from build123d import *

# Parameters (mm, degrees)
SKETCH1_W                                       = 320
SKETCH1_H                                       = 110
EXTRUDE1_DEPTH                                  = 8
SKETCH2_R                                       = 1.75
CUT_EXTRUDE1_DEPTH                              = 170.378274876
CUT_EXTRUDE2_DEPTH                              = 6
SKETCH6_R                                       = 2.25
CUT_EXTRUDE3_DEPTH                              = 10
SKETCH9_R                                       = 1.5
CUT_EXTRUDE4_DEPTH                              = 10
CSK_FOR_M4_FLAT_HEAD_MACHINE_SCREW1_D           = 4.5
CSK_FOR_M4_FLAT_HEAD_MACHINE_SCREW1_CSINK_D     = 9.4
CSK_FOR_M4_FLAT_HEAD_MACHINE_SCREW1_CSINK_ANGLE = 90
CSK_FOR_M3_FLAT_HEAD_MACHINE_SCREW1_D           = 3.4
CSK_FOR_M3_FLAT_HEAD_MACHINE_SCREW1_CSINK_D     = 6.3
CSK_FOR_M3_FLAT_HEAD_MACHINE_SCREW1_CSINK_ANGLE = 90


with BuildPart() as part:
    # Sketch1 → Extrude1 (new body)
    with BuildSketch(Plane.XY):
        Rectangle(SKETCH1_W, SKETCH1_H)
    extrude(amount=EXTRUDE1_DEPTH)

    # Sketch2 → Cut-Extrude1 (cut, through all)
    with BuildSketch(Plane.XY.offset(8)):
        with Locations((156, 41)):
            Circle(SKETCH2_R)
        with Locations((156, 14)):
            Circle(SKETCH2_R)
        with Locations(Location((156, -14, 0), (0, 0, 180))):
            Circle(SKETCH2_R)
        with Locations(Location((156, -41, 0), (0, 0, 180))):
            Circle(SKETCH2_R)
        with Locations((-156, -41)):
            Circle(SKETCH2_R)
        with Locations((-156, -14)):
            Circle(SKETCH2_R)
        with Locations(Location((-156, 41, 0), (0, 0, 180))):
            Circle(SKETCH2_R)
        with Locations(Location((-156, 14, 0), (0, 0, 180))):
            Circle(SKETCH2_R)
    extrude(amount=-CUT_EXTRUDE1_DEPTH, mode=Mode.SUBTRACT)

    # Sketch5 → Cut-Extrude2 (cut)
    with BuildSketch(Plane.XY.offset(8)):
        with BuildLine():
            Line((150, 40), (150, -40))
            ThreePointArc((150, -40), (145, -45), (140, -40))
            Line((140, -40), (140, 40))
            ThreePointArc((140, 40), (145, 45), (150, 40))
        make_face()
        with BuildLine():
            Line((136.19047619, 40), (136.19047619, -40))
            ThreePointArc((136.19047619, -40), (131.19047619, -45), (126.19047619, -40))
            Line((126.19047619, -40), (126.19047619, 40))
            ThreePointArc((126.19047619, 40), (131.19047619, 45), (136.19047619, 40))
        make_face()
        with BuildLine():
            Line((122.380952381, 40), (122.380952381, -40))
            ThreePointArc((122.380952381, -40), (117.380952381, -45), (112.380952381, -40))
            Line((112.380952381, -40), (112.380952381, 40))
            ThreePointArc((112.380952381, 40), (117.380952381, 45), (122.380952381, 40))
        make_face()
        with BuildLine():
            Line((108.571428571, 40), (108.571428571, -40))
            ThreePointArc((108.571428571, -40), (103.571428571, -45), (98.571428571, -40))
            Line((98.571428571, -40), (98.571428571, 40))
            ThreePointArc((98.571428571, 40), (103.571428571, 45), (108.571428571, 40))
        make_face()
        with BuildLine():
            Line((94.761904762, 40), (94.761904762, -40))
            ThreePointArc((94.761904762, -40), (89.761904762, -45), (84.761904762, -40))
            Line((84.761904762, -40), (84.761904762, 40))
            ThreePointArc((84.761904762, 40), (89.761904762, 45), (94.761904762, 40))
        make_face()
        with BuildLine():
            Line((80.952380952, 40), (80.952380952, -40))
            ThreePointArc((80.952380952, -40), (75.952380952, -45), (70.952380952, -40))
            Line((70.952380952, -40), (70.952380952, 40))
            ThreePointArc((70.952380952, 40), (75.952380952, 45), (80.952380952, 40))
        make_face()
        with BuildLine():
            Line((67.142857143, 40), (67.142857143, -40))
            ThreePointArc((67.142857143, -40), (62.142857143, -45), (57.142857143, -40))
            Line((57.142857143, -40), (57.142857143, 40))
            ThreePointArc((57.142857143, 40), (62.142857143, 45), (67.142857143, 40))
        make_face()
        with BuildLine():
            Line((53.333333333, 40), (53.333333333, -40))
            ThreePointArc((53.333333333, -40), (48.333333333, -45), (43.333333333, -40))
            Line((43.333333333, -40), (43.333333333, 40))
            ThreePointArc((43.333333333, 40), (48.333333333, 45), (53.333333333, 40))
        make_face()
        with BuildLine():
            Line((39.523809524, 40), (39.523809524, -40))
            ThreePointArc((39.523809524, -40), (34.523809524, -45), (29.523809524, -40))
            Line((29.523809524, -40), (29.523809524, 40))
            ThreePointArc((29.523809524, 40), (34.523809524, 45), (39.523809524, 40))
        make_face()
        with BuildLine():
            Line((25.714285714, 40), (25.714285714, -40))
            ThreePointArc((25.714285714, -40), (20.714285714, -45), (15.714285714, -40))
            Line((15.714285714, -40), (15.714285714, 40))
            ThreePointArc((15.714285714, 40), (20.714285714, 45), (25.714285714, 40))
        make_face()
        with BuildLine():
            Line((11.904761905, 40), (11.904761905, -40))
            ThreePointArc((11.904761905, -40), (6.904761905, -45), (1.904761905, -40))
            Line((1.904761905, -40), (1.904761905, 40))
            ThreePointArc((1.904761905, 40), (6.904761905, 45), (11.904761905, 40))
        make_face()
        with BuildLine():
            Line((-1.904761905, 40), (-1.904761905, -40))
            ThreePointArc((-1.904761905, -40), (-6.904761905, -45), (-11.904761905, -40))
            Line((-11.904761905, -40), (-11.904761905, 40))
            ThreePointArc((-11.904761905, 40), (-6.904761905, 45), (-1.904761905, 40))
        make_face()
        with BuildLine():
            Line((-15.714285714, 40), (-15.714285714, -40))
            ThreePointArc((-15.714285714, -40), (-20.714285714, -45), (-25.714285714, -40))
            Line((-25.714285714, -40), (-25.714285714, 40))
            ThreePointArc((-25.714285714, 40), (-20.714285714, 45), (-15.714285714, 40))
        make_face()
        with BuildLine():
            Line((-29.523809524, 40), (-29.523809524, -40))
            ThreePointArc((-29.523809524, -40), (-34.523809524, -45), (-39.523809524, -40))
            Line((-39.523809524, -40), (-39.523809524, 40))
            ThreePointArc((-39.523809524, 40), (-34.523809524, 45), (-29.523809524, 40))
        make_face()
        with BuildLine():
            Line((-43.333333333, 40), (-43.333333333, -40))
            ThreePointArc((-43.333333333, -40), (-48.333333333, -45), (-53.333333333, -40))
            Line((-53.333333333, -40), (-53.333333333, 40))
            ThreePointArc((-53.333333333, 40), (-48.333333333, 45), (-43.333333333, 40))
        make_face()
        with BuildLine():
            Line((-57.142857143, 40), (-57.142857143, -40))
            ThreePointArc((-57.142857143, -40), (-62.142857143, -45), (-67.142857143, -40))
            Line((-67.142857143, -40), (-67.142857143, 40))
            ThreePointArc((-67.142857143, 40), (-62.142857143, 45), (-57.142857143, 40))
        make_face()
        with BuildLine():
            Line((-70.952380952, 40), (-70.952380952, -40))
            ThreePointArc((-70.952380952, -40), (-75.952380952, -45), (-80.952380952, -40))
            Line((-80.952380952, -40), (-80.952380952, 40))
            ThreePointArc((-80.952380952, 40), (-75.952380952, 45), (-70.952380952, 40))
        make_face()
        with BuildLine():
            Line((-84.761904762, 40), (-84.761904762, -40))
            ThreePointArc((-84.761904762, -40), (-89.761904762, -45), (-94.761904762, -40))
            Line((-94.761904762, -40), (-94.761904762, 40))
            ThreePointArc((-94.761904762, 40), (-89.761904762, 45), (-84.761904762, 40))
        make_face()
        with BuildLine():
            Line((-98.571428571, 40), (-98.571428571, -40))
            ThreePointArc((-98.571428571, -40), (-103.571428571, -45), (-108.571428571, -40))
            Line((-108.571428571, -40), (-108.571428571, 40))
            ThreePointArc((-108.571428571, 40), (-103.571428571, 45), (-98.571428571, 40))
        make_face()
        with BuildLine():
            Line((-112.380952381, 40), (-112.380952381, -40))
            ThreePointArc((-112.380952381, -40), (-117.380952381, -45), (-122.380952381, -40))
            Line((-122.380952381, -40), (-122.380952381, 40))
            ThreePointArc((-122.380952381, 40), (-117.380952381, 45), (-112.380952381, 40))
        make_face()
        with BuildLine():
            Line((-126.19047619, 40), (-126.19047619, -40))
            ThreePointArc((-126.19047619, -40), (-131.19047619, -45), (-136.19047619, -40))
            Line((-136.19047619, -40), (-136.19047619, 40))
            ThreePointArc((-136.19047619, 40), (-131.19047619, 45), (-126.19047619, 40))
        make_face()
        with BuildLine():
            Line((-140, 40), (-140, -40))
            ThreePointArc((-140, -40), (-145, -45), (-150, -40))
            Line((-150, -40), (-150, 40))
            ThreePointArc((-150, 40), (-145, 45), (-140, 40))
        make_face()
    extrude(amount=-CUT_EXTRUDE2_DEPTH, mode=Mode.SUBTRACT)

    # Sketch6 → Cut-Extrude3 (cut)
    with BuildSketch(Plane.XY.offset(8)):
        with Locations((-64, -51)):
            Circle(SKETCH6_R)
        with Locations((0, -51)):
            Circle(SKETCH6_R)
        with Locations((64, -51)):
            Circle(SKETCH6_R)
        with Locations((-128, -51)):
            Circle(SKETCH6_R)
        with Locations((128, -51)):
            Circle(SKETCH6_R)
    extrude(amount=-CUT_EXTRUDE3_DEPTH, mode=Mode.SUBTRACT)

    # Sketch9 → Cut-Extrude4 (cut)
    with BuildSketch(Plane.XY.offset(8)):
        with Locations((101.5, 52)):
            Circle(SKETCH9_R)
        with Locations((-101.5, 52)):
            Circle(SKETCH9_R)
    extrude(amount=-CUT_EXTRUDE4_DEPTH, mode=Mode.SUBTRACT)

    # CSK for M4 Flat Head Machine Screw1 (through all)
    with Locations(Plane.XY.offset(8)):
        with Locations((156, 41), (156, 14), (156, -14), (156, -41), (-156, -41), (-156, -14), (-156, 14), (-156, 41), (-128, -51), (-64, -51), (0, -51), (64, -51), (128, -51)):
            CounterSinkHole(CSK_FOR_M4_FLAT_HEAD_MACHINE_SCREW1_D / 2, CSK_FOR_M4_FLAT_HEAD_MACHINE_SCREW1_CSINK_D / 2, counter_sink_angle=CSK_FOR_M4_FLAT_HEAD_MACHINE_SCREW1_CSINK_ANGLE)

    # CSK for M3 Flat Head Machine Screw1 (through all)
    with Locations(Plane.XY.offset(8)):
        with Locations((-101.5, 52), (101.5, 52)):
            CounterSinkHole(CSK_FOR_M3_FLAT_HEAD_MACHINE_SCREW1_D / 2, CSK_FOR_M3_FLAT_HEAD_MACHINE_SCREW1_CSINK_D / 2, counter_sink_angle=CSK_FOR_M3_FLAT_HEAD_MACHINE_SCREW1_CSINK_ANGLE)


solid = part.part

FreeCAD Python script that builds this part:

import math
import FreeCAD as App
import Part
import Sketcher

V = App.Vector
Q = App.Units.Quantity

doc = App.newDocument("Part")
body = doc.addObject("PartDesign::Body", "Body")

# Sketch on XY plane
sketch1 = body.newObject("Sketcher::SketchObject", "Sketch")
sketch1.AttachmentSupport = (doc.getObject("XY_Plane"), [""])
sketch1.MapMode = "FlatFace"
sketch1.addGeometry([
    Part.LineSegment(V(-160, 55, 0), V(-160, -55, 0)),
    Part.LineSegment(V(-160, -55, 0), V(160, -55, 0)),
    Part.LineSegment(V(160, -55, 0), V(160, 55, 0)),
    Part.LineSegment(V(160, 55, 0), V(-160, 55, 0)),
], False)
sketch1.addConstraint([
    Sketcher.Constraint("Coincident", 0, 2, 1, 1),
    Sketcher.Constraint("Coincident", 1, 2, 2, 1),
    Sketcher.Constraint("Coincident", 2, 2, 3, 1),
    Sketcher.Constraint("Coincident", 3, 2, 0, 1),
    Sketcher.Constraint("Vertical", 0),
    Sketcher.Constraint("Horizontal", 1),
    Sketcher.Constraint("Vertical", 2),
    Sketcher.Constraint("Horizontal", 3),
    Sketcher.Constraint("Symmetric", 0, 2, 2, 2, -1, 1),
    Sketcher.Constraint("DistanceX", 1, 1, 1, 2, Q("320 mm")),
    Sketcher.Constraint("DistanceY", 0, 2, 0, 1, Q("110 mm")),
])
pad1 = body.newObject("PartDesign::Pad", "Pad")
pad1.Profile = sketch1
pad1.Length = 8

# Sketch on XY plane
sketch2 = body.newObject("Sketcher::SketchObject", "Sketch001")
sketch2.AttachmentSupport = (doc.getObject("XY_Plane"), [""])
sketch2.MapMode = "FlatFace"
sketch2.AttachmentOffset = App.Placement(V(0, 0, 8), App.Rotation())
sketch2.addGeometry([
    Part.Circle(V(156, 41, 0), V(0, 0, 1), 1.75),  # 0
    Part.Circle(V(156, 14, 0), V(0, 0, 1), 1.75),  # 1
    Part.Circle(V(156, -14, 0), V(0, 0, 1), 1.75),  # 2
    Part.Circle(V(156, -41, 0), V(0, 0, 1), 1.75),  # 3
    Part.Circle(V(-156, -41, 0), V(0, 0, 1), 1.75),  # 4
    Part.Circle(V(-156, -14, 0), V(0, 0, 1), 1.75),  # 5
    Part.Circle(V(-156, 41, 0), V(0, 0, 1), 1.75),  # 6
    Part.Circle(V(-156, 14, 0), V(0, 0, 1), 1.75),  # 7
], False)
sketch2.addConstraint([
    Sketcher.Constraint("Equal", 0, 1),
    Sketcher.Constraint("Equal", 1, 2),
    Sketcher.Constraint("Equal", 2, 3),
    Sketcher.Constraint("Equal", 3, 4),
    Sketcher.Constraint("Equal", 4, 5),
    Sketcher.Constraint("Equal", 5, 6),
    Sketcher.Constraint("Equal", 6, 7),
    Sketcher.Constraint("Symmetric", 0, 3, 4, 3, -1, 1),
    Sketcher.Constraint("Symmetric", 1, 3, 5, 3, -1, 1),
    Sketcher.Constraint("Symmetric", 3, 3, 6, 3, -1, 1),
    Sketcher.Constraint("Symmetric", 2, 3, 7, 3, -1, 1),
    Sketcher.Constraint("Symmetric", 3, 3, 4, 3, -2),
    Sketcher.Constraint("Symmetric", 2, 3, 5, 3, -2),
    Sketcher.Constraint("Vertical", 0, 3, 1, 3),
    Sketcher.Constraint("Diameter", 0, Q("3.5 mm")),
    Sketcher.Constraint("DistanceX", -1, 1, 0, 3, Q("156 mm")),
    Sketcher.Constraint("DistanceY", -1, 1, 0, 3, Q("41 mm")),
    Sketcher.Constraint("DistanceY", -1, 1, 1, 3, Q("14 mm")),
])
pocket1 = body.newObject("PartDesign::Pocket", "Pocket")
pocket1.Profile = sketch2
pocket1.Type = "ThroughAll"

# Sketch on XY plane
sketch3 = body.newObject("Sketcher::SketchObject", "Sketch002")
sketch3.AttachmentSupport = (doc.getObject("XY_Plane"), [""])
sketch3.MapMode = "FlatFace"
sketch3.AttachmentOffset = App.Placement(V(0, 0, 8), App.Rotation())
sketch3.addGeometry([
    Part.LineSegment(V(150, -40, 0), V(150, 40, 0)),  # 0
    Part.ArcOfCircle(Part.Circle(V(145, 40, 0), V(0, 0, 1), 5), math.radians(0), math.radians(180)),  # 1
    Part.LineSegment(V(140, 40, 0), V(140, -40, 0)),  # 2
    Part.ArcOfCircle(Part.Circle(V(145, -40, 0), V(0, 0, 1), 5), math.radians(180), math.radians(360)),  # 3
    Part.LineSegment(V(136.190476, -40, 0), V(136.190476, 40, 0)),  # 4
    Part.ArcOfCircle(Part.Circle(V(131.190476, 40, 0), V(0, 0, 1), 5), math.radians(0), math.radians(180)),  # 5
    Part.LineSegment(V(126.190476, 40, 0), V(126.190476, -40, 0)),  # 6
    Part.ArcOfCircle(Part.Circle(V(131.190476, -40, 0), V(0, 0, 1), 5), math.radians(180), math.radians(360)),  # 7
    Part.LineSegment(V(122.380952, -40, 0), V(122.380952, 40, 0)),  # 8
    Part.ArcOfCircle(Part.Circle(V(117.380952, 40, 0), V(0, 0, 1), 5), math.radians(0), math.radians(180)),  # 9
    Part.LineSegment(V(112.380952, 40, 0), V(112.380952, -40, 0)),  # 10
    Part.ArcOfCircle(Part.Circle(V(117.380952, -40, 0), V(0, 0, 1), 5), math.radians(180), math.radians(360)),  # 11
    Part.LineSegment(V(108.571429, -40, 0), V(108.571429, 40, 0)),  # 12
    Part.ArcOfCircle(Part.Circle(V(103.571429, 40, 0), V(0, 0, 1), 5), math.radians(0), math.radians(180)),  # 13
    Part.LineSegment(V(98.571429, 40, 0), V(98.571429, -40, 0)),  # 14
    Part.ArcOfCircle(Part.Circle(V(103.571429, -40, 0), V(0, 0, 1), 5), math.radians(180), math.radians(360)),  # 15
    Part.LineSegment(V(94.761905, -40, 0), V(94.761905, 40, 0)),  # 16
    Part.ArcOfCircle(Part.Circle(V(89.761905, 40, 0), V(0, 0, 1), 5), math.radians(0), math.radians(180)),  # 17
    Part.LineSegment(V(84.761905, 40, 0), V(84.761905, -40, 0)),  # 18
    Part.ArcOfCircle(Part.Circle(V(89.761905, -40, 0), V(0, 0, 1), 5), math.radians(180), math.radians(360)),  # 19
    Part.LineSegment(V(80.952381, -40, 0), V(80.952381, 40, 0)),  # 20
    Part.ArcOfCircle(Part.Circle(V(75.952381, 40, 0), V(0, 0, 1), 5), math.radians(0), math.radians(180)),  # 21
    Part.LineSegment(V(70.952381, 40, 0), V(70.952381, -40, 0)),  # 22
    Part.ArcOfCircle(Part.Circle(V(75.952381, -40, 0), V(0, 0, 1), 5), math.radians(180), math.radians(360)),  # 23
    Part.LineSegment(V(67.142857, -40, 0), V(67.142857, 40, 0)),  # 24
    Part.ArcOfCircle(Part.Circle(V(62.142857, 40, 0), V(0, 0, 1), 5), math.radians(0), math.radians(180)),  # 25
    Part.LineSegment(V(57.142857, 40, 0), V(57.142857, -40, 0)),  # 26
    Part.ArcOfCircle(Part.Circle(V(62.142857, -40, 0), V(0, 0, 1), 5), math.radians(180), math.radians(360)),  # 27
    Part.LineSegment(V(53.333333, -40, 0), V(53.333333, 40, 0)),  # 28
    Part.ArcOfCircle(Part.Circle(V(48.333333, 40, 0), V(0, 0, 1), 5), math.radians(0), math.radians(180)),  # 29
    Part.LineSegment(V(43.333333, 40, 0), V(43.333333, -40, 0)),  # 30
    Part.ArcOfCircle(Part.Circle(V(48.333333, -40, 0), V(0, 0, 1), 5), math.radians(180), math.radians(360)),  # 31
    Part.LineSegment(V(39.52381, -40, 0), V(39.52381, 40, 0)),  # 32
    Part.ArcOfCircle(Part.Circle(V(34.52381, 40, 0), V(0, 0, 1), 5), math.radians(0), math.radians(180)),  # 33
    Part.LineSegment(V(29.52381, 40, 0), V(29.52381, -40, 0)),  # 34
    Part.ArcOfCircle(Part.Circle(V(34.52381, -40, 0), V(0, 0, 1), 5), math.radians(180), math.radians(360)),  # 35
    Part.LineSegment(V(25.714286, -40, 0), V(25.714286, 40, 0)),  # 36
    Part.ArcOfCircle(Part.Circle(V(20.714286, 40, 0), V(0, 0, 1), 5), math.radians(0), math.radians(180)),  # 37
    Part.LineSegment(V(15.714286, 40, 0), V(15.714286, -40, 0)),  # 38
    Part.ArcOfCircle(Part.Circle(V(20.714286, -40, 0), V(0, 0, 1), 5), math.radians(180), math.radians(360)),  # 39
    Part.LineSegment(V(11.904762, -40, 0), V(11.904762, 40, 0)),  # 40
    Part.ArcOfCircle(Part.Circle(V(6.904762, 40, 0), V(0, 0, 1), 5), math.radians(0), math.radians(180)),  # 41
    Part.LineSegment(V(1.904762, 40, 0), V(1.904762, -40, 0)),  # 42
    Part.ArcOfCircle(Part.Circle(V(6.904762, -40, 0), V(0, 0, 1), 5), math.radians(180), math.radians(360)),  # 43
    Part.LineSegment(V(-1.904762, -40, 0), V(-1.904762, 40, 0)),  # 44
    Part.ArcOfCircle(Part.Circle(V(-6.904762, 40, 0), V(0, 0, 1), 5), math.radians(0), math.radians(180)),  # 45
    Part.LineSegment(V(-11.904762, 40, 0), V(-11.904762, -40, 0)),  # 46
    Part.ArcOfCircle(Part.Circle(V(-6.904762, -40, 0), V(0, 0, 1), 5), math.radians(180), math.radians(360)),  # 47
    Part.LineSegment(V(-15.714286, -40, 0), V(-15.714286, 40, 0)),  # 48
    Part.ArcOfCircle(Part.Circle(V(-20.714286, 40, 0), V(0, 0, 1), 5), math.radians(0), math.radians(180)),  # 49
    Part.LineSegment(V(-25.714286, 40, 0), V(-25.714286, -40, 0)),  # 50
    Part.ArcOfCircle(Part.Circle(V(-20.714286, -40, 0), V(0, 0, 1), 5), math.radians(180), math.radians(360)),  # 51
    Part.LineSegment(V(-29.52381, -40, 0), V(-29.52381, 40, 0)),  # 52
    Part.ArcOfCircle(Part.Circle(V(-34.52381, 40, 0), V(0, 0, 1), 5), math.radians(0), math.radians(180)),  # 53
    Part.LineSegment(V(-39.52381, 40, 0), V(-39.52381, -40, 0)),  # 54
    Part.ArcOfCircle(Part.Circle(V(-34.52381, -40, 0), V(0, 0, 1), 5), math.radians(180), math.radians(360)),  # 55
    Part.LineSegment(V(-43.333333, -40, 0), V(-43.333333, 40, 0)),  # 56
    Part.ArcOfCircle(Part.Circle(V(-48.333333, 40, 0), V(0, 0, 1), 5), math.radians(0), math.radians(180)),  # 57
    Part.LineSegment(V(-53.333333, 40, 0), V(-53.333333, -40, 0)),  # 58
    Part.ArcOfCircle(Part.Circle(V(-48.333333, -40, 0), V(0, 0, 1), 5), math.radians(180), math.radians(360)),  # 59
    Part.LineSegment(V(-57.142857, -40, 0), V(-57.142857, 40, 0)),  # 60
    Part.ArcOfCircle(Part.Circle(V(-62.142857, 40, 0), V(0, 0, 1), 5), math.radians(0), math.radians(180)),  # 61
    Part.LineSegment(V(-67.142857, 40, 0), V(-67.142857, -40, 0)),  # 62
    Part.ArcOfCircle(Part.Circle(V(-62.142857, -40, 0), V(0, 0, 1), 5), math.radians(180), math.radians(360)),  # 63
    Part.LineSegment(V(-70.952381, -40, 0), V(-70.952381, 40, 0)),  # 64
    Part.ArcOfCircle(Part.Circle(V(-75.952381, 40, 0), V(0, 0, 1), 5), math.radians(0), math.radians(180)),  # 65
    Part.LineSegment(V(-80.952381, 40, 0), V(-80.952381, -40, 0)),  # 66
    Part.ArcOfCircle(Part.Circle(V(-75.952381, -40, 0), V(0, 0, 1), 5), math.radians(180), math.radians(360)),  # 67
    Part.LineSegment(V(-84.761905, -40, 0), V(-84.761905, 40, 0)),  # 68
    Part.ArcOfCircle(Part.Circle(V(-89.761905, 40, 0), V(0, 0, 1), 5), math.radians(0), math.radians(180)),  # 69
    Part.LineSegment(V(-94.761905, 40, 0), V(-94.761905, -40, 0)),  # 70
    Part.ArcOfCircle(Part.Circle(V(-89.761905, -40, 0), V(0, 0, 1), 5), math.radians(180), math.radians(360)),  # 71
    Part.LineSegment(V(-98.571429, -40, 0), V(-98.571429, 40, 0)),  # 72
    Part.ArcOfCircle(Part.Circle(V(-103.571429, 40, 0), V(0, 0, 1), 5), math.radians(0), math.radians(180)),  # 73
    Part.LineSegment(V(-108.571429, 40, 0), V(-108.571429, -40, 0)),  # 74
    Part.ArcOfCircle(Part.Circle(V(-103.571429, -40, 0), V(0, 0, 1), 5), math.radians(180), math.radians(360)),  # 75
    Part.LineSegment(V(-112.380952, -40, 0), V(-112.380952, 40, 0)),  # 76
    Part.ArcOfCircle(Part.Circle(V(-117.380952, 40, 0), V(0, 0, 1), 5), math.radians(0), math.radians(180)),  # 77
    Part.LineSegment(V(-122.380952, 40, 0), V(-122.380952, -40, 0)),  # 78
    Part.ArcOfCircle(Part.Circle(V(-117.380952, -40, 0), V(0, 0, 1), 5), math.radians(180), math.radians(360)),  # 79
    Part.LineSegment(V(-126.190476, -40, 0), V(-126.190476, 40, 0)),  # 80
    Part.ArcOfCircle(Part.Circle(V(-131.190476, 40, 0), V(0, 0, 1), 5), math.radians(0), math.radians(180)),  # 81
    Part.LineSegment(V(-136.190476, 40, 0), V(-136.190476, -40, 0)),  # 82
    Part.ArcOfCircle(Part.Circle(V(-131.190476, -40, 0), V(0, 0, 1), 5), math.radians(180), math.radians(360)),  # 83
    Part.LineSegment(V(-140, -40, 0), V(-140, 40, 0)),  # 84
    Part.ArcOfCircle(Part.Circle(V(-145, 40, 0), V(0, 0, 1), 5), math.radians(0), math.radians(180)),  # 85
    Part.LineSegment(V(-150, 40, 0), V(-150, -40, 0)),  # 86
    Part.ArcOfCircle(Part.Circle(V(-145, -40, 0), V(0, 0, 1), 5), math.radians(180), math.radians(360)),  # 87
], False)
sketch3.addConstraint([
    Sketcher.Constraint("Tangent", 0, 2, 1, 1),
    Sketcher.Constraint("Tangent", 1, 2, 2, 1),
    Sketcher.Constraint("Tangent", 2, 2, 3, 1),
    Sketcher.Constraint("Tangent", 3, 2, 0, 1),
    Sketcher.Constraint("Tangent", 4, 2, 5, 1),
    Sketcher.Constraint("Tangent", 5, 2, 6, 1),
    Sketcher.Constraint("Tangent", 6, 2, 7, 1),
    Sketcher.Constraint("Tangent", 7, 2, 4, 1),
    Sketcher.Constraint("Tangent", 8, 2, 9, 1),
    Sketcher.Constraint("Tangent", 9, 2, 10, 1),
    Sketcher.Constraint("Tangent", 10, 2, 11, 1),
    Sketcher.Constraint("Tangent", 11, 2, 8, 1),
    Sketcher.Constraint("Tangent", 12, 2, 13, 1),
    Sketcher.Constraint("Tangent", 13, 2, 14, 1),
    Sketcher.Constraint("Tangent", 14, 2, 15, 1),
    Sketcher.Constraint("Tangent", 15, 2, 12, 1),
    Sketcher.Constraint("Tangent", 16, 2, 17, 1),
    Sketcher.Constraint("Tangent", 17, 2, 18, 1),
    Sketcher.Constraint("Tangent", 18, 2, 19, 1),
    Sketcher.Constraint("Tangent", 19, 2, 16, 1),
    Sketcher.Constraint("Tangent", 20, 2, 21, 1),
    Sketcher.Constraint("Tangent", 21, 2, 22, 1),
    Sketcher.Constraint("Tangent", 22, 2, 23, 1),
    Sketcher.Constraint("Tangent", 23, 2, 20, 1),
    Sketcher.Constraint("Tangent", 24, 2, 25, 1),
    Sketcher.Constraint("Tangent", 25, 2, 26, 1),
    Sketcher.Constraint("Tangent", 26, 2, 27, 1),
    Sketcher.Constraint("Tangent", 27, 2, 24, 1),
    Sketcher.Constraint("Tangent", 28, 2, 29, 1),
    Sketcher.Constraint("Tangent", 29, 2, 30, 1),
    Sketcher.Constraint("Tangent", 30, 2, 31, 1),
    Sketcher.Constraint("Tangent", 31, 2, 28, 1),
    Sketcher.Constraint("Tangent", 32, 2, 33, 1),
    Sketcher.Constraint("Tangent", 33, 2, 34, 1),
    Sketcher.Constraint("Tangent", 34, 2, 35, 1),
    Sketcher.Constraint("Tangent", 35, 2, 32, 1),
    Sketcher.Constraint("Tangent", 36, 2, 37, 1),
    Sketcher.Constraint("Tangent", 37, 2, 38, 1),
    Sketcher.Constraint("Tangent", 38, 2, 39, 1),
    Sketcher.Constraint("Tangent", 39, 2, 36, 1),
    Sketcher.Constraint("Tangent", 40, 2, 41, 1),
    Sketcher.Constraint("Tangent", 41, 2, 42, 1),
    Sketcher.Constraint("Tangent", 42, 2, 43, 1),
    Sketcher.Constraint("Tangent", 43, 2, 40, 1),
    Sketcher.Constraint("Tangent", 44, 2, 45, 1),
    Sketcher.Constraint("Tangent", 45, 2, 46, 1),
    Sketcher.Constraint("Tangent", 46, 2, 47, 1),
    Sketcher.Constraint("Tangent", 47, 2, 44, 1),
    Sketcher.Constraint("Tangent", 48, 2, 49, 1),
    Sketcher.Constraint("Tangent", 49, 2, 50, 1),
    Sketcher.Constraint("Tangent", 50, 2, 51, 1),
    Sketcher.Constraint("Tangent", 51, 2, 48, 1),
    Sketcher.Constraint("Tangent", 52, 2, 53, 1),
    Sketcher.Constraint("Tangent", 53, 2, 54, 1),
    Sketcher.Constraint("Tangent", 54, 2, 55, 1),
    Sketcher.Constraint("Tangent", 55, 2, 52, 1),
    Sketcher.Constraint("Tangent", 56, 2, 57, 1),
    Sketcher.Constraint("Tangent", 57, 2, 58, 1),
    Sketcher.Constraint("Tangent", 58, 2, 59, 1),
    Sketcher.Constraint("Tangent", 59, 2, 56, 1),
    Sketcher.Constraint("Tangent", 60, 2, 61, 1),
    Sketcher.Constraint("Tangent", 61, 2, 62, 1),
    Sketcher.Constraint("Tangent", 62, 2, 63, 1),
    Sketcher.Constraint("Tangent", 63, 2, 60, 1),
    Sketcher.Constraint("Tangent", 64, 2, 65, 1),
    Sketcher.Constraint("Tangent", 65, 2, 66, 1),
    Sketcher.Constraint("Tangent", 66, 2, 67, 1),
    Sketcher.Constraint("Tangent", 67, 2, 64, 1),
    Sketcher.Constraint("Tangent", 68, 2, 69, 1),
    Sketcher.Constraint("Tangent", 69, 2, 70, 1),
    Sketcher.Constraint("Tangent", 70, 2, 71, 1),
    Sketcher.Constraint("Tangent", 71, 2, 68, 1),
    Sketcher.Constraint("Tangent", 72, 2, 73, 1),
    Sketcher.Constraint("Tangent", 73, 2, 74, 1),
    Sketcher.Constraint("Tangent", 74, 2, 75, 1),
    Sketcher.Constraint("Tangent", 75, 2, 72, 1),
    Sketcher.Constraint("Tangent", 76, 2, 77, 1),
    Sketcher.Constraint("Tangent", 77, 2, 78, 1),
    Sketcher.Constraint("Tangent", 78, 2, 79, 1),
    Sketcher.Constraint("Tangent", 79, 2, 76, 1),
    Sketcher.Constraint("Tangent", 80, 2, 81, 1),
    Sketcher.Constraint("Tangent", 81, 2, 82, 1),
    Sketcher.Constraint("Tangent", 82, 2, 83, 1),
    Sketcher.Constraint("Tangent", 83, 2, 80, 1),
    Sketcher.Constraint("Tangent", 84, 2, 85, 1),
    Sketcher.Constraint("Tangent", 85, 2, 86, 1),
    Sketcher.Constraint("Tangent", 86, 2, 87, 1),
    Sketcher.Constraint("Tangent", 87, 2, 84, 1),
    Sketcher.Constraint("Vertical", 0),
    Sketcher.Constraint("Vertical", 2),
    Sketcher.Constraint("Vertical", 4),
    Sketcher.Constraint("Vertical", 6),
    Sketcher.Constraint("Vertical", 8),
    Sketcher.Constraint("Vertical", 10),
    Sketcher.Constraint("Vertical", 12),
    Sketcher.Constraint("Vertical", 14),
    Sketcher.Constraint("Vertical", 16),
    Sketcher.Constraint("Vertical", 18),
    Sketcher.Constraint("Vertical", 20),
    Sketcher.Constraint("Vertical", 22),
    Sketcher.Constraint("Vertical", 24),
    Sketcher.Constraint("Vertical", 26),
    Sketcher.Constraint("Vertical", 28),
    Sketcher.Constraint("Vertical", 30),
    Sketcher.Constraint("Vertical", 32),
    Sketcher.Constraint("Vertical", 34),
    Sketcher.Constraint("Vertical", 36),
    Sketcher.Constraint("Vertical", 38),
    Sketcher.Constraint("Vertical", 40),
    Sketcher.Constraint("Vertical", 42),
    Sketcher.Constraint("Vertical", 44),
    Sketcher.Constraint("Vertical", 46),
    Sketcher.Constraint("Vertical", 48),
    Sketcher.Constraint("Vertical", 50),
    Sketcher.Constraint("Vertical", 52),
    Sketcher.Constraint("Vertical", 54),
    Sketcher.Constraint("Vertical", 56),
    Sketcher.Constraint("Vertical", 58),
    Sketcher.Constraint("Vertical", 60),
    Sketcher.Constraint("Vertical", 62),
    Sketcher.Constraint("Vertical", 64),
    Sketcher.Constraint("Vertical", 66),
    Sketcher.Constraint("Vertical", 68),
    Sketcher.Constraint("Vertical", 70),
    Sketcher.Constraint("Vertical", 72),
    Sketcher.Constraint("Vertical", 74),
    Sketcher.Constraint("Vertical", 76),
    Sketcher.Constraint("Vertical", 78),
    Sketcher.Constraint("Vertical", 80),
    Sketcher.Constraint("Vertical", 82),
    Sketcher.Constraint("Vertical", 84),
    Sketcher.Constraint("Vertical", 86),
    Sketcher.Constraint("Equal", 3, 5),
    Sketcher.Constraint("Equal", 7, 9),
    Sketcher.Constraint("Equal", 11, 13),
    Sketcher.Constraint("Equal", 15, 17),
    Sketcher.Constraint("Equal", 19, 21),
    Sketcher.Constraint("Equal", 23, 25),
    Sketcher.Constraint("Equal", 27, 29),
    Sketcher.Constraint("Equal", 31, 33),
    Sketcher.Constraint("Equal", 35, 37),
    Sketcher.Constraint("Equal", 39, 41),
    Sketcher.Constraint("Equal", 43, 45),
    Sketcher.Constraint("Equal", 47, 49),
    Sketcher.Constraint("Equal", 51, 53),
    Sketcher.Constraint("Equal", 55, 57),
    Sketcher.Constraint("Equal", 59, 61),
    Sketcher.Constraint("Equal", 63, 65),
    Sketcher.Constraint("Equal", 67, 69),
    Sketcher.Constraint("Equal", 71, 73),
    Sketcher.Constraint("Equal", 75, 77),
    Sketcher.Constraint("Equal", 79, 81),
    Sketcher.Constraint("Equal", 83, 85),
    Sketcher.Constraint("Symmetric", 43, 3, 45, 3, -1, 1),
    Sketcher.Constraint("Symmetric", 39, 3, 49, 3, -1, 1),
    Sketcher.Constraint("Symmetric", 35, 3, 53, 3, -1, 1),
    Sketcher.Constraint("Symmetric", 31, 3, 57, 3, -1, 1),
    Sketcher.Constraint("Symmetric", 27, 3, 61, 3, -1, 1),
    Sketcher.Constraint("Symmetric", 23, 3, 65, 3, -1, 1),
    Sketcher.Constraint("Symmetric", 19, 3, 69, 3, -1, 1),
    Sketcher.Constraint("Symmetric", 15, 3, 73, 3, -1, 1),
    Sketcher.Constraint("Symmetric", 11, 3, 77, 3, -1, 1),
    Sketcher.Constraint("Symmetric", 7, 3, 81, 3, -1, 1),
    Sketcher.Constraint("Symmetric", 3, 3, 85, 3, -1, 1),
    Sketcher.Constraint("Horizontal", 1, 3, 5, 3),
    Sketcher.Constraint("Horizontal", 3, 3, 7, 3),
    Sketcher.Constraint("Horizontal", 5, 3, 9, 3),
    Sketcher.Constraint("Horizontal", 7, 3, 11, 3),
    Sketcher.Constraint("Horizontal", 9, 3, 13, 3),
    Sketcher.Constraint("Horizontal", 11, 3, 15, 3),
    Sketcher.Constraint("Horizontal", 13, 3, 17, 3),
    Sketcher.Constraint("Horizontal", 15, 3, 19, 3),
    Sketcher.Constraint("Horizontal", 17, 3, 21, 3),
    Sketcher.Constraint("Horizontal", 19, 3, 23, 3),
    Sketcher.Constraint("Horizontal", 21, 3, 25, 3),
    Sketcher.Constraint("Horizontal", 23, 3, 27, 3),
    Sketcher.Constraint("Horizontal", 25, 3, 29, 3),
    Sketcher.Constraint("Horizontal", 27, 3, 31, 3),
    Sketcher.Constraint("Horizontal", 29, 3, 33, 3),
    Sketcher.Constraint("Horizontal", 31, 3, 35, 3),
    Sketcher.Constraint("Horizontal", 33, 3, 37, 3),
    Sketcher.Constraint("Horizontal", 35, 3, 39, 3),
    Sketcher.Constraint("Horizontal", 37, 3, 41, 3),
    Sketcher.Constraint("Horizontal", 39, 3, 43, 3),
    Sketcher.Constraint("Horizontal", 41, 3, 45, 3),
    Sketcher.Constraint("Horizontal", 43, 3, 47, 3),
    Sketcher.Constraint("Horizontal", 47, 3, 51, 3),
    Sketcher.Constraint("Horizontal", 51, 3, 55, 3),
    Sketcher.Constraint("Horizontal", 55, 3, 59, 3),
    Sketcher.Constraint("Horizontal", 59, 3, 63, 3),
    Sketcher.Constraint("Horizontal", 63, 3, 67, 3),
    Sketcher.Constraint("Horizontal", 67, 3, 71, 3),
    Sketcher.Constraint("Horizontal", 71, 3, 75, 3),
    Sketcher.Constraint("Horizontal", 75, 3, 79, 3),
    Sketcher.Constraint("Horizontal", 79, 3, 83, 3),
    Sketcher.Constraint("Horizontal", 83, 3, 87, 3),
    Sketcher.Constraint("Radius", 1, Q("5 mm")),
    Sketcher.Constraint("DistanceY", 0, 1, 0, 2, Q("80 mm")),
    Sketcher.Constraint("DistanceX", -1, 1, 1, 3, Q("145 mm")),
    Sketcher.Constraint("DistanceX", -1, 1, 13, 3, Q("103.571429 mm")),
    Sketcher.Constraint("DistanceX", -1, 1, 21, 3, Q("75.952381 mm")),
    Sketcher.Constraint("DistanceX", -1, 1, 33, 3, Q("34.52381 mm")),
    Sketcher.Constraint("DistanceX", -1, 1, 41, 3, Q("6.904762 mm")),
    Sketcher.Constraint("DistanceX", -1, 1, 5, 3, Q("131.190476 mm")),
    Sketcher.Constraint("DistanceX", -1, 1, 9, 3, Q("117.380952 mm")),
    Sketcher.Constraint("DistanceX", -1, 1, 17, 3, Q("89.761905 mm")),
    Sketcher.Constraint("DistanceX", -1, 1, 25, 3, Q("62.142857 mm")),
    Sketcher.Constraint("DistanceX", -1, 1, 29, 3, Q("48.333333 mm")),
    Sketcher.Constraint("DistanceX", -1, 1, 37, 3, Q("20.714286 mm")),
])
pocket2 = body.newObject("PartDesign::Pocket", "Pocket001")
pocket2.Profile = sketch3
pocket2.Length = 6

# Sketch on XY plane
sketch4 = body.newObject("Sketcher::SketchObject", "Sketch003")
sketch4.AttachmentSupport = (doc.getObject("XY_Plane"), [""])
sketch4.MapMode = "FlatFace"
sketch4.AttachmentOffset = App.Placement(V(0, 0, 8), App.Rotation())
sketch4.addGeometry([
    Part.Circle(V(-64, -51, 0), V(0, 0, 1), 2.25),  # 0
    Part.Circle(V(0, -51, 0), V(0, 0, 1), 2.25),  # 1
    Part.Circle(V(64, -51, 0), V(0, 0, 1), 2.25),  # 2
    Part.Circle(V(-128, -51, 0), V(0, 0, 1), 2.25),  # 3
    Part.Circle(V(128, -51, 0), V(0, 0, 1), 2.25),  # 4
], False)
sketch4.addConstraint([
    Sketcher.Constraint("Equal", 0, 1),
    Sketcher.Constraint("Equal", 1, 2),
    Sketcher.Constraint("Equal", 2, 3),
    Sketcher.Constraint("Equal", 3, 4),
    Sketcher.Constraint("Symmetric", 0, 3, 2, 3, -2),
    Sketcher.Constraint("Symmetric", 3, 3, 4, 3, -2),
    Sketcher.Constraint("PointOnObject", 1, 3, -2),
    Sketcher.Constraint("Horizontal", 0, 3, 1, 3),
    Sketcher.Constraint("Horizontal", 2, 3, 3, 3),
    Sketcher.Constraint("Diameter", 0, Q("4.5 mm")),
    Sketcher.Constraint("DistanceX", 0, 3, -1, 1, Q("64 mm")),
    Sketcher.Constraint("DistanceY", 0, 3, -1, 1, Q("51 mm")),
    Sketcher.Constraint("DistanceX", 3, 3, -1, 1, Q("128 mm")),
])
pocket3 = body.newObject("PartDesign::Pocket", "Pocket002")
pocket3.Profile = sketch4
pocket3.Length = 10

# Sketch on XY plane
sketch5 = body.newObject("Sketcher::SketchObject", "Sketch004")
sketch5.AttachmentSupport = (doc.getObject("XY_Plane"), [""])
sketch5.MapMode = "FlatFace"
sketch5.AttachmentOffset = App.Placement(V(0, 0, 8), App.Rotation())
sketch5.addGeometry([
    Part.Circle(V(101.5, 52, 0), V(0, 0, 1), 1.5),
    Part.Circle(V(-101.5, 52, 0), V(0, 0, 1), 1.5),
], False)
sketch5.addConstraint([
    Sketcher.Constraint("Equal", 0, 1),
    Sketcher.Constraint("Symmetric", 0, 3, 1, 3, -2),
    Sketcher.Constraint("Diameter", 0, Q("3 mm")),
    Sketcher.Constraint("DistanceY", -1, 1, 0, 3, Q("52 mm")),
    Sketcher.Constraint("DistanceX", 1, 3, 0, 3, Q("203 mm")),
])
pocket4 = body.newObject("PartDesign::Pocket", "Pocket003")
pocket4.Profile = sketch5
pocket4.Length = 10

# Sketch on XY plane
sketch6 = body.newObject("Sketcher::SketchObject", "Sketch005")
sketch6.AttachmentSupport = (doc.getObject("XY_Plane"), [""])
sketch6.MapMode = "FlatFace"
sketch6.AttachmentOffset = App.Placement(V(0, 0, 8), App.Rotation())
sketch6.addGeometry([
    Part.Circle(V(156, 41, 0), V(0, 0, 1), 2.25),  # 0
    Part.Circle(V(156, 14, 0), V(0, 0, 1), 2.25),  # 1
    Part.Circle(V(156, -14, 0), V(0, 0, 1), 2.25),  # 2
    Part.Circle(V(156, -41, 0), V(0, 0, 1), 2.25),  # 3
    Part.Circle(V(-156, -41, 0), V(0, 0, 1), 2.25),  # 4
    Part.Circle(V(-156, -14, 0), V(0, 0, 1), 2.25),  # 5
    Part.Circle(V(-156, 14, 0), V(0, 0, 1), 2.25),  # 6
    Part.Circle(V(-156, 41, 0), V(0, 0, 1), 2.25),  # 7
    Part.Circle(V(-128, -51, 0), V(0, 0, 1), 2.25),  # 8
    Part.Circle(V(-64, -51, 0), V(0, 0, 1), 2.25),  # 9
    Part.Circle(V(0, -51, 0), V(0, 0, 1), 2.25),  # 10
    Part.Circle(V(64, -51, 0), V(0, 0, 1), 2.25),  # 11
    Part.Circle(V(128, -51, 0), V(0, 0, 1), 2.25),  # 12
], False)
sketch6.addConstraint([
    Sketcher.Constraint("Equal", 0, 1),
    Sketcher.Constraint("Equal", 1, 2),
    Sketcher.Constraint("Equal", 2, 3),
    Sketcher.Constraint("Equal", 3, 4),
    Sketcher.Constraint("Equal", 4, 5),
    Sketcher.Constraint("Equal", 5, 6),
    Sketcher.Constraint("Equal", 6, 7),
    Sketcher.Constraint("Equal", 7, 8),
    Sketcher.Constraint("Equal", 8, 9),
    Sketcher.Constraint("Equal", 9, 10),
    Sketcher.Constraint("Equal", 10, 11),
    Sketcher.Constraint("Equal", 11, 12),
    Sketcher.Constraint("Symmetric", 0, 3, 4, 3, -1, 1),
    Sketcher.Constraint("Symmetric", 1, 3, 5, 3, -1, 1),
    Sketcher.Constraint("Symmetric", 2, 3, 6, 3, -1, 1),
    Sketcher.Constraint("Symmetric", 3, 3, 7, 3, -1, 1),
    Sketcher.Constraint("Symmetric", 3, 3, 4, 3, -2),
    Sketcher.Constraint("Symmetric", 2, 3, 5, 3, -2),
    Sketcher.Constraint("Symmetric", 9, 3, 11, 3, -2),
    Sketcher.Constraint("Symmetric", 8, 3, 12, 3, -2),
    Sketcher.Constraint("PointOnObject", 10, 3, -2),
    Sketcher.Constraint("Horizontal", 8, 3, 9, 3),
    Sketcher.Constraint("Horizontal", 9, 3, 10, 3),
    Sketcher.Constraint("Vertical", 0, 3, 1, 3),
    Sketcher.Constraint("Diameter", 0, Q("4.5 mm")),
    Sketcher.Constraint("DistanceX", -1, 1, 0, 3, Q("156 mm")),
    Sketcher.Constraint("DistanceY", -1, 1, 0, 3, Q("41 mm")),
    Sketcher.Constraint("DistanceY", -1, 1, 1, 3, Q("14 mm")),
    Sketcher.Constraint("DistanceX", 8, 3, -1, 1, Q("128 mm")),
    Sketcher.Constraint("DistanceY", 8, 3, -1, 1, Q("51 mm")),
    Sketcher.Constraint("DistanceX", 9, 3, -1, 1, Q("64 mm")),
])
doc.recompute()
hole = body.newObject("PartDesign::Hole", "Hole")
hole.Profile = sketch6
hole.ThreadType = "None"
hole.Diameter = 4.5
hole.DepthType = "ThroughAll"
hole.HoleCutType = "Countersink"
hole.HoleCutDiameter = 9.4
hole.HoleCutCountersinkAngle = 90

# Sketch on XY plane
sketch7 = body.newObject("Sketcher::SketchObject", "Sketch006")
sketch7.AttachmentSupport = (doc.getObject("XY_Plane"), [""])
sketch7.MapMode = "FlatFace"
sketch7.AttachmentOffset = App.Placement(V(0, 0, 8), App.Rotation())
sketch7.addGeometry([
    Part.Circle(V(-101.5, 52, 0), V(0, 0, 1), 1.7),
    Part.Circle(V(101.5, 52, 0), V(0, 0, 1), 1.7),
], False)
sketch7.addConstraint([
    Sketcher.Constraint("Equal", 0, 1),
    Sketcher.Constraint("Symmetric", 0, 3, 1, 3, -2),
    Sketcher.Constraint("Diameter", 0, Q("3.4 mm")),
    Sketcher.Constraint("DistanceY", -1, 1, 0, 3, Q("52 mm")),
    Sketcher.Constraint("DistanceX", 0, 3, 1, 3, Q("203 mm")),
])
doc.recompute()
hole2 = body.newObject("PartDesign::Hole", "Hole001")
hole2.Profile = sketch7
hole2.ThreadType = "None"
hole2.Diameter = 3.4
hole2.DepthType = "ThroughAll"
hole2.HoleCutType = "Countersink"
hole2.HoleCutDiameter = 6.3
hole2.HoleCutCountersinkAngle = 90

doc.recompute()
